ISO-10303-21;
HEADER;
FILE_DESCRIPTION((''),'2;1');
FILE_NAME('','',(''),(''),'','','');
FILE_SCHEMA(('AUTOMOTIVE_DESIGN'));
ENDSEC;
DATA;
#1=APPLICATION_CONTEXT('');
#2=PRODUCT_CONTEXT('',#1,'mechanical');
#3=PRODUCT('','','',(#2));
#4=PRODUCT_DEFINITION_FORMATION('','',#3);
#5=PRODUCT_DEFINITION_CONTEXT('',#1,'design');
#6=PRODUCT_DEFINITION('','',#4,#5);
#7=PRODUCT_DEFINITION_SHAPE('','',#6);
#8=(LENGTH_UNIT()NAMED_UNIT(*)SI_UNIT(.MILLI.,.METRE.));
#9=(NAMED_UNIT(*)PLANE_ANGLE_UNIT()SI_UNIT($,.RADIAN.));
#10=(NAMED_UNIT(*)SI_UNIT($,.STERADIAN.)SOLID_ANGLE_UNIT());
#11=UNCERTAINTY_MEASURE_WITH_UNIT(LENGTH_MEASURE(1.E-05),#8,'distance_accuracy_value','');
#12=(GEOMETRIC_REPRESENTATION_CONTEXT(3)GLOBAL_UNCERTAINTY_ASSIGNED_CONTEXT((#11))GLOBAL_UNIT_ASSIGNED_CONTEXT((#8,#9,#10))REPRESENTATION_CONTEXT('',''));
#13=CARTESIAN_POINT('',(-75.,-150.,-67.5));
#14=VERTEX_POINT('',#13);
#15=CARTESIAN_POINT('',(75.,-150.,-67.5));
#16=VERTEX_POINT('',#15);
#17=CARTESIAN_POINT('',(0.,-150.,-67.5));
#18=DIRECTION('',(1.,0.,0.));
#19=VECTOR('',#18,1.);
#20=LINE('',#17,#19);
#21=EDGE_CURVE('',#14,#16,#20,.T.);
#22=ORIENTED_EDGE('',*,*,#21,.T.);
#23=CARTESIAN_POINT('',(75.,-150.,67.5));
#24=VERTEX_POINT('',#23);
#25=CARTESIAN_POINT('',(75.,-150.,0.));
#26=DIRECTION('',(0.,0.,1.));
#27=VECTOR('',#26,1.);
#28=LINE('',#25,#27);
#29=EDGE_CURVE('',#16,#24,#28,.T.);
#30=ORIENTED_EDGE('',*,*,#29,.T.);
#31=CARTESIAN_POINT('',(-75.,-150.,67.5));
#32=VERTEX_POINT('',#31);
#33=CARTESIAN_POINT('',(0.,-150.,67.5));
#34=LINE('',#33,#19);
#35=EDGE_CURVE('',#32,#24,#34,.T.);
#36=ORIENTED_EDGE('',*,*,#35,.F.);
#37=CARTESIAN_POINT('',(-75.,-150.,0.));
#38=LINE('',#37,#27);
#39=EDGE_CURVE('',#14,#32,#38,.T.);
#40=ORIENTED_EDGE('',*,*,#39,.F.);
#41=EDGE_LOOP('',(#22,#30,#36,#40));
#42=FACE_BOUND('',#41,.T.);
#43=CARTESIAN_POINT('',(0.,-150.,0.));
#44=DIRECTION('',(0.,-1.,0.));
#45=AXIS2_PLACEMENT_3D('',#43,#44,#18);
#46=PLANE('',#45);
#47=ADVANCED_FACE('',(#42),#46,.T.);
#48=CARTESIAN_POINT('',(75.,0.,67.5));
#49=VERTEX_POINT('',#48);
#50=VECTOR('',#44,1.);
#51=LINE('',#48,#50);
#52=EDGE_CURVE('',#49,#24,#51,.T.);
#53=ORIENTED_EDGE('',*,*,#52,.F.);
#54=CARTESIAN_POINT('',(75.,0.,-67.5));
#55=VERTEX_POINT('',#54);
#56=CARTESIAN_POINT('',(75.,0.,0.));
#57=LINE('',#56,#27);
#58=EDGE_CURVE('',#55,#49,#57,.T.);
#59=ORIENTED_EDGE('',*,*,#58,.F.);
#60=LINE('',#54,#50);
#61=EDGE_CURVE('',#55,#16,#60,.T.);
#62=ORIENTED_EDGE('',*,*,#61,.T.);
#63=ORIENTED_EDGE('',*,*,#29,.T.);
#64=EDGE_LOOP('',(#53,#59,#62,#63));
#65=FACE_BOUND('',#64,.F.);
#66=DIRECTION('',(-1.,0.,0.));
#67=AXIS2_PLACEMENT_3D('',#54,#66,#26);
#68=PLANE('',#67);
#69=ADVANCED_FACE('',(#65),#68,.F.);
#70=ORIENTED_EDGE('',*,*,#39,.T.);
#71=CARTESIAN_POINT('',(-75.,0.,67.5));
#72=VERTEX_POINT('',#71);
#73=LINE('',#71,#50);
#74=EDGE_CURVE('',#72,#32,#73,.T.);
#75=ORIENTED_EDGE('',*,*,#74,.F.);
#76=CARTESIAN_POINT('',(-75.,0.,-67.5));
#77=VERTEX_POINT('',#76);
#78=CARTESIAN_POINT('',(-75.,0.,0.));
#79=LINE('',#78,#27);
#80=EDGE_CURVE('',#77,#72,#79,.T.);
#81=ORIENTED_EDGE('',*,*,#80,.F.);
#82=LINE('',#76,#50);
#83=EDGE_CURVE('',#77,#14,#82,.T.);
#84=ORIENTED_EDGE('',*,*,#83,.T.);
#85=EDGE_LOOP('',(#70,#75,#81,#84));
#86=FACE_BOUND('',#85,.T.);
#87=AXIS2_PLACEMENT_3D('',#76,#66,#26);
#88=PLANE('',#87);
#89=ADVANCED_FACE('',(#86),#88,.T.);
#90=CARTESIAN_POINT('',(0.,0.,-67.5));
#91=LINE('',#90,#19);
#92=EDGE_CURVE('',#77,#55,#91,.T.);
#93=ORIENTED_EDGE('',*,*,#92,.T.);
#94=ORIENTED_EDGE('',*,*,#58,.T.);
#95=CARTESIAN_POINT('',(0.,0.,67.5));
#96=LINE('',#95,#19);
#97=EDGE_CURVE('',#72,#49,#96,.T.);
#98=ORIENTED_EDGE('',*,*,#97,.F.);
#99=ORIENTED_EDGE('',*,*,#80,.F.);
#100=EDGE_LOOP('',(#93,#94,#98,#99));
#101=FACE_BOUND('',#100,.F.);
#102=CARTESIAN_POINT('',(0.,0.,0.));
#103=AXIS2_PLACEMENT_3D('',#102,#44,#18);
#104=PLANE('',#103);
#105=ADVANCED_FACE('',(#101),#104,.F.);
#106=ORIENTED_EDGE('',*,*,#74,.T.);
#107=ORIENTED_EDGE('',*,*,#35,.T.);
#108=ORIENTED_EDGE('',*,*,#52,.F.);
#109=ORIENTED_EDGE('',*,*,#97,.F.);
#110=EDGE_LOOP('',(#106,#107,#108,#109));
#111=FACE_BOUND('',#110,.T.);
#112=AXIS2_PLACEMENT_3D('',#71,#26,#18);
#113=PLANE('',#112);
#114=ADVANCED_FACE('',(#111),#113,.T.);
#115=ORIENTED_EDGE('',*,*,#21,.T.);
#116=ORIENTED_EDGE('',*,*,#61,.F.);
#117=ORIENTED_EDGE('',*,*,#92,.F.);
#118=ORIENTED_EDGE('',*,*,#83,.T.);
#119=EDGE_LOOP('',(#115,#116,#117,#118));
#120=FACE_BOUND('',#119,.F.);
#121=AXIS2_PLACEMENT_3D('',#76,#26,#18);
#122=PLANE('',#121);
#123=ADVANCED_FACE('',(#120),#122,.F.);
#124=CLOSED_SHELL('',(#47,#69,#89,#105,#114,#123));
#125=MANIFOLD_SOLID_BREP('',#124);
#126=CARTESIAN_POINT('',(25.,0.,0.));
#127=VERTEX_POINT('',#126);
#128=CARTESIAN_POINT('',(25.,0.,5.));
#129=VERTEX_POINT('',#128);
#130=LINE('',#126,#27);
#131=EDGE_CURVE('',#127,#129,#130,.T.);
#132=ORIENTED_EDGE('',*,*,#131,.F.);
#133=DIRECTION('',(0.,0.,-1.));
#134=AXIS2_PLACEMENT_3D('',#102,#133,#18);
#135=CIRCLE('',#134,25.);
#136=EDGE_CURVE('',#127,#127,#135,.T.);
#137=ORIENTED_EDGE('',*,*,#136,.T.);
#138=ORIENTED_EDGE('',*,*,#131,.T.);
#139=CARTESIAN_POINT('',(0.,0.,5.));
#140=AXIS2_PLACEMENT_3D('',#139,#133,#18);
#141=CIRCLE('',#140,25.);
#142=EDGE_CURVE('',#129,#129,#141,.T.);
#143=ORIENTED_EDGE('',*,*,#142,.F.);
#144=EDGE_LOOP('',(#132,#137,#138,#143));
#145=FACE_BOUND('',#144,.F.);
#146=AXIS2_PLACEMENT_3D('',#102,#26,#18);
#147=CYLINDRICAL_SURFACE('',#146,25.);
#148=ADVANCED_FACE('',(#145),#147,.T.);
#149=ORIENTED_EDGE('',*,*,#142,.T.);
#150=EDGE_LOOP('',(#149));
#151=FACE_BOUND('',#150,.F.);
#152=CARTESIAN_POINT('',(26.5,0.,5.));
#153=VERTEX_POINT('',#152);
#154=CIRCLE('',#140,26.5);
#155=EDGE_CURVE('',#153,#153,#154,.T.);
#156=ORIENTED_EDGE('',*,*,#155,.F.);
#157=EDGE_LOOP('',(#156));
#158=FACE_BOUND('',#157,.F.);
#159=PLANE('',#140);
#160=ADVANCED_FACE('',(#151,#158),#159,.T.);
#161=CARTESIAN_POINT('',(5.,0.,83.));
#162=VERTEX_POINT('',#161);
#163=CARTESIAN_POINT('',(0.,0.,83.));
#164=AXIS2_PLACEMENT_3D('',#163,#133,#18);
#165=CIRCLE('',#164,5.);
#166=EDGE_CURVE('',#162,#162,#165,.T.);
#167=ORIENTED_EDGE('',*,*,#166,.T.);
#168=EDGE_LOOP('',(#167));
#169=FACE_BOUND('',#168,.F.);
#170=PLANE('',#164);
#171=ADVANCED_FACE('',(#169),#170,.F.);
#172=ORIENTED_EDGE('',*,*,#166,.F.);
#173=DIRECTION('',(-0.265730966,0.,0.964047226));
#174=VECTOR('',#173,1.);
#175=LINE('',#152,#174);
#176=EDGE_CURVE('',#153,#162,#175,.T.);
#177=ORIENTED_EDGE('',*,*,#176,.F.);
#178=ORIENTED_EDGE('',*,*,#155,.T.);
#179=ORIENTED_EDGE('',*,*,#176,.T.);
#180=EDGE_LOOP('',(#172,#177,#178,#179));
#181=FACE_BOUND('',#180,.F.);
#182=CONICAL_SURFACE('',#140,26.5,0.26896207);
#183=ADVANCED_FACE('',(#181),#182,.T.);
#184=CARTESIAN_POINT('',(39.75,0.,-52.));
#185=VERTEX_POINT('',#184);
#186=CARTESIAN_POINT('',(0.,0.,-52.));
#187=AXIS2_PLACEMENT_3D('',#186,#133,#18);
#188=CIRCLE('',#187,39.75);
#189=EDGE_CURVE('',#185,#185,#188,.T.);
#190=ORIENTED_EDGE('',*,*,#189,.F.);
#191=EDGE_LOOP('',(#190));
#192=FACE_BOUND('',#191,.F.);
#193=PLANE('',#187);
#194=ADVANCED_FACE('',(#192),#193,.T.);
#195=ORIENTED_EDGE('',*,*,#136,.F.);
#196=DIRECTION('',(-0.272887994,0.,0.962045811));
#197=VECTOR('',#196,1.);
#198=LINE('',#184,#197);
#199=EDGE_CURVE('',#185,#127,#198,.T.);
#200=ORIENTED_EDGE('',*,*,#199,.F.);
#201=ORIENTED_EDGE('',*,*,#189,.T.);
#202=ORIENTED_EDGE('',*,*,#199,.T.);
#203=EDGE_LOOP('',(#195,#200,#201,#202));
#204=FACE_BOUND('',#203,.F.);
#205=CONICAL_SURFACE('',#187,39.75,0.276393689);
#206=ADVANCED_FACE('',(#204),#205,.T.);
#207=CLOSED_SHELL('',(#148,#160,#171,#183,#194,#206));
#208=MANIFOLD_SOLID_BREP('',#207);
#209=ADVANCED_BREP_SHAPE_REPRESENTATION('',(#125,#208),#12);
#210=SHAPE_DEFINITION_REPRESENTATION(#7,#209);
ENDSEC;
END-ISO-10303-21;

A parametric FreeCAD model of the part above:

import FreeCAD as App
import Part
import Sketcher
from FreeCAD import Vector
Q = App.Units.Quantity


def add_polygon(sketch, points):
    """Adds a closed chain of lines whose ends are joined by coincident constraints."""
    first, n = sketch.GeometryCount, len(points)
    for a, b in zip(points, points[1:] + points[:1]):
        sketch.addGeometry(Part.LineSegment(App.Vector(*a, 0), App.Vector(*b, 0)), False)
    for i in range(n):
        sketch.addConstraint(Sketcher.Constraint("Coincident", first + i, 2, first + (i + 1) % n, 1))

doc = App.newDocument("Part")
body = doc.addObject("PartDesign::Body", "Body")

sketch1 = body.newObject("Sketcher::SketchObject", "Sketch")
sketch1.AttachmentSupport = (doc.getObject("XZ_Plane"), [""])
sketch1.MapMode = "FlatFace"
add_polygon(sketch1, [(5, 83), (0, 83), (0, -52), (39.8, -52), (25, 0), (25, 5), (26.5, 5)])
sketch1.addConstraint(Sketcher.Constraint("Horizontal", 0))
sketch1.addConstraint(Sketcher.Constraint("Vertical", 1))
sketch1.addConstraint(Sketcher.Constraint("Horizontal", 2))
sketch1.addConstraint(Sketcher.Constraint("Vertical", 4))
sketch1.addConstraint(Sketcher.Constraint("Horizontal", 5))
sketch1.addConstraint(Sketcher.Constraint("PointOnObject", 0, 2, -2))
sketch1.addConstraint(Sketcher.Constraint("PointOnObject", 3, 2, -1))
sketch1.addConstraint(Sketcher.Constraint("Equal", 0, 4))
sketch1.addConstraint(Sketcher.Constraint("DistanceX", 0, 2, 0, 1, Q("5 mm")))
sketch1.addConstraint(Sketcher.Constraint("DistanceY", 1, 2, 1, 1, Q("135 mm")))
sketch1.addConstraint(Sketcher.Constraint("DistanceX", 5, 1, 5, 2, Q("1.5 mm")))
sketch1.addConstraint(Sketcher.Constraint("DistanceY", -1, 1, 0, 2, Q("83 mm")))
sketch1.addConstraint(Sketcher.Constraint("DistanceX", -1, 1, 3, 2, Q("25 mm")))
sketch1.addConstraint(Sketcher.Constraint("DistanceX", 2, 1, 2, 2, Q("39.75 mm")))
revolution = body.newObject("PartDesign::Revolution", "Revolution")
revolution.Profile = sketch1
revolution.ReferenceAxis = (sketch1, ["V_Axis"])
revolution.Angle = 360
body2 = doc.addObject("PartDesign::Body", "Body001")

sketch2 = body2.newObject("Sketcher::SketchObject", "Sketch001")
sketch2.AttachmentSupport = (doc.getObject("XZ_Plane001"), [""])
sketch2.MapMode = "FlatFace"
add_polygon(sketch2, [(-75, 68), (-75, -68), (75, -68), (75, 68)])
sketch2.addConstraint(Sketcher.Constraint("Vertical", 0))
sketch2.addConstraint(Sketcher.Constraint("Horizontal", 1))
sketch2.addConstraint(Sketcher.Constraint("Vertical", 2))
sketch2.addConstraint(Sketcher.Constraint("Horizontal", 3))
sketch2.addConstraint(Sketcher.Constraint("Symmetric", 0, 2, 2, 2, -1, 1))
sketch2.addConstraint(Sketcher.Constraint("DistanceX", 1, 1, 1, 2, Q("150 mm")))
sketch2.addConstraint(Sketcher.Constraint("DistanceY", 0, 2, 0, 1, Q("135 mm")))
pad1 = body2.newObject("PartDesign::Pad", "Pad")
pad1.Profile = sketch2
pad1.Length = 150

doc.recompute()
